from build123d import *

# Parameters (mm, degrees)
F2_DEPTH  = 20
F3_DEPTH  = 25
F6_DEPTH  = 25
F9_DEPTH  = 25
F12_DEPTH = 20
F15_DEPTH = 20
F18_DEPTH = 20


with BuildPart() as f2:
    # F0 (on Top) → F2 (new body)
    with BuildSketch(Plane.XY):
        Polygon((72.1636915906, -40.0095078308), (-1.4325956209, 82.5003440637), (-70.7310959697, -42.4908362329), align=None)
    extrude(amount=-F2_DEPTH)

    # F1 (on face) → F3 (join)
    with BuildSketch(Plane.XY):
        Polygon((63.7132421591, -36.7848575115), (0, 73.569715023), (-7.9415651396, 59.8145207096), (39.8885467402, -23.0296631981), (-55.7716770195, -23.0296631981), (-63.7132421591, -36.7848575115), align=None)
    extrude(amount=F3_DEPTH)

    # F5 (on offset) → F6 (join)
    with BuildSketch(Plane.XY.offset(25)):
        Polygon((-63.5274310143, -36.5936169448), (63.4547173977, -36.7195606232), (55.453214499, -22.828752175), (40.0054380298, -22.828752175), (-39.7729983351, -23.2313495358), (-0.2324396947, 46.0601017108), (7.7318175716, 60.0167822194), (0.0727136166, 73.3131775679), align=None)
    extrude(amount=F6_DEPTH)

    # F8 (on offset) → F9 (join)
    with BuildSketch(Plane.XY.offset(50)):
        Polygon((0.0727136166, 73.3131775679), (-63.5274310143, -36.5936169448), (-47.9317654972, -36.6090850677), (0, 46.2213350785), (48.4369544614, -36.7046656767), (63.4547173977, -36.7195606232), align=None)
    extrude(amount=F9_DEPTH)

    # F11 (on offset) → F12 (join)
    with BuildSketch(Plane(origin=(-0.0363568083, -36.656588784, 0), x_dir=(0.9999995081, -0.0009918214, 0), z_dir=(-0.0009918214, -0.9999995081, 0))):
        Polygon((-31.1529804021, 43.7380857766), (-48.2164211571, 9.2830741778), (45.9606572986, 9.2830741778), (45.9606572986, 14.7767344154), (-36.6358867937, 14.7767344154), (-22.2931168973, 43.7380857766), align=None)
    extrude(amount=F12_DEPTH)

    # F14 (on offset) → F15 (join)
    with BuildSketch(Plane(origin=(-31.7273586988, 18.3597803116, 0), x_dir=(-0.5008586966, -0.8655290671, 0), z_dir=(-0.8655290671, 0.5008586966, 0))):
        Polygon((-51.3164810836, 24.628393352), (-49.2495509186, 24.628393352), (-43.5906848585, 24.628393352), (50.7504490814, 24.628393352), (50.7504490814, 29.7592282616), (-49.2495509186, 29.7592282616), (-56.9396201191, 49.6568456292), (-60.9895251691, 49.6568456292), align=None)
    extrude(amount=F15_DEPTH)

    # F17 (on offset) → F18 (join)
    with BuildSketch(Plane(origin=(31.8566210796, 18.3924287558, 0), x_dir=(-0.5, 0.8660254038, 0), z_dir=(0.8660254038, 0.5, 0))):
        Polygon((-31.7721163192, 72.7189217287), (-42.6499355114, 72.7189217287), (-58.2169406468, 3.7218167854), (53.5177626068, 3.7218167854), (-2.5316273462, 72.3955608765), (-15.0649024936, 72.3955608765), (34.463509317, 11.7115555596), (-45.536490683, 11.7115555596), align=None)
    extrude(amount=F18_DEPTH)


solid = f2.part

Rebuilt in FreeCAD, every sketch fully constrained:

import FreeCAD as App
import Part
import Sketcher
Q = App.Units.Quantity


def add_polygon(sketch, points):
    """Adds a closed chain of lines whose ends are joined by coincident constraints."""
    first, n = sketch.GeometryCount, len(points)
    for a, b in zip(points, points[1:] + points[:1]):
        sketch.addGeometry(Part.LineSegment(App.Vector(*a, 0), App.Vector(*b, 0)), False)
    for i in range(n):
        sketch.addConstraint(Sketcher.Constraint("Coincident", first + i, 2, first + (i + 1) % n, 1))

doc = App.newDocument("Part")
body = doc.addObject("PartDesign::Body", "Body")

# Sketch on XY plane
sketch1 = doc.addObject("Sketcher::SketchObject", "Sketch")
body.addObject(sketch1)
sketch1.AttachmentSupport = (doc.XY_Plane, [""])
sketch1.MapMode = "FlatFace"
add_polygon(sketch1, [(72, -40), (-1, 83), (-71, -42)])  # lines 0-2
sketch1.addConstraint([
    Sketcher.Constraint("Equal", 0, 1),
    Sketcher.Constraint("Equal", 1, 2),
    Sketcher.Constraint("DistanceX", 1, 2, 0, 2, Q("69.2985 mm")),
    Sketcher.Constraint("Distance", 0, Q("142.91633 mm")),
    Sketcher.Constraint("DistanceX", -1, 1, 2, 2, Q("72.163692 mm")),
    Sketcher.Constraint("DistanceY", -1, 1, 0, 2, Q("82.500344 mm")),
])
pad1 = doc.addObject("PartDesign::Pad", "Pad")
body.addObject(pad1)
pad1.Profile = sketch1
pad1.Length = 20
pad1.Reversed = True

# Sketch on XY plane
sketch2 = doc.addObject("Sketcher::SketchObject", "Sketch001")
body.addObject(sketch2)
sketch2.AttachmentSupport = (doc.XY_Plane, [""])
sketch2.MapMode = "FlatFace"
add_polygon(sketch2, [(64, -37), (0, 74), (-8, 60), (40, -23), (-56, -23), (-64, -37)])  # lines 0-5
sketch2.addConstraint([
    Sketcher.Constraint("Horizontal", 3),
    Sketcher.Constraint("Horizontal", 5),
    Sketcher.Constraint("PointOnObject", 0, 2, -2),
    Sketcher.Constraint("Parallel", 0, 2),
    Sketcher.Constraint("Parallel", 1, 4),
    Sketcher.Constraint("Equal", 1, 4),
    Sketcher.Constraint("Angle", 0, Q("120 deg")),
    Sketcher.Constraint("Angle", 1, Q("-120 deg")),
    Sketcher.Constraint("Distance", 1, Q("15.88313 mm")),
    Sketcher.Constraint("DistanceX", 3, 2, 3, 1, Q("95.660224 mm")),
    Sketcher.Constraint("DistanceY", -1, 1, 1, 2, Q("59.814521 mm")),
    Sketcher.Constraint("DistanceX", 1, 2, 2, 2, Q("47.830112 mm")),
])
pad2 = doc.addObject("PartDesign::Pad", "Pad001")
body.addObject(pad2)
pad2.Profile = sketch2
pad2.Length = 25

# Sketch on XY plane
sketch3 = doc.addObject("Sketcher::SketchObject", "Sketch002")
body.addObject(sketch3)
sketch3.AttachmentSupport = (doc.XY_Plane, [""])
sketch3.MapMode = "FlatFace"
sketch3.AttachmentOffset = App.Placement(App.Vector(0, 0, 25), App.Rotation())
add_polygon(sketch3, [(-64, -37), (63, -37), (55, -23), (40, -23), (-40, -23), (0, 46), (8, 60), (0, 73)])  # lines 0-7
sketch3.addConstraint([
    Sketcher.Constraint("Horizontal", 2),
    Sketcher.Constraint("Parallel", 4, 5),
    Sketcher.Constraint("Parallel", 1, 6),
    Sketcher.Constraint("Equal", 3, 4),
    Sketcher.Constraint("Equal", 0, 7),
    Sketcher.Constraint("DistanceX", 3, 2, -1, 1, Q("39.772998 mm")),
    Sketcher.Constraint("DistanceY", -1, 1, 4, 2, Q("46.060102 mm")),
    Sketcher.Constraint("DistanceX", 5, 2, 0, 2, Q("55.7229 mm")),
    Sketcher.Constraint("DistanceX", 6, 2, 1, 2, Q("55.380501 mm")),
    Sketcher.Constraint("DistanceY", 7, 2, 5, 2, Q("96.610399 mm")),
    Sketcher.Constraint("Distance", 0, Q("126.982211 mm")),
    Sketcher.Constraint("DistanceX", 2, 2, 2, 1, Q("15.447776 mm")),
    Sketcher.Constraint("DistanceY", 0, 2, -1, 1, Q("36.719561 mm")),
    Sketcher.Constraint("DistanceX", -1, 1, 2, 2, Q("40.005438 mm")),
    Sketcher.Constraint("DistanceY", 3, 2, -1, 1, Q("23.23135 mm")),
    Sketcher.Constraint("DistanceX", 7, 2, -1, 1, Q("63.527431 mm")),
])
pad3 = doc.addObject("PartDesign::Pad", "Pad002")
body.addObject(pad3)
pad3.Profile = sketch3
pad3.Length = 25

# Sketch on XY plane
sketch4 = doc.addObject("Sketcher::SketchObject", "Sketch003")
body.addObject(sketch4)
sketch4.AttachmentSupport = (doc.XY_Plane, [""])
sketch4.MapMode = "FlatFace"
sketch4.AttachmentOffset = App.Placement(App.Vector(0, 0, 50), App.Rotation())
add_polygon(sketch4, [(0, 73), (-64, -37), (-48, -37), (0, 46), (48, -37), (63, -37)])  # lines 0-5
sketch4.addConstraint([
    Sketcher.Constraint("PointOnObject", 2, 2, -2),
    Sketcher.Constraint("Parallel", 0, 2),
    Sketcher.Constraint("Parallel", 1, 4),
    Sketcher.Constraint("Equal", 0, 5),
    Sketcher.Constraint("DistanceY", 3, 2, 2, 2, Q("82.926001 mm")),
    Sketcher.Constraint("Distance", 0, Q("126.982211 mm")),
    Sketcher.Constraint("Distance", 4, Q("15.01777 mm")),
    Sketcher.Constraint("DistanceX", 0, 2, -1, 1, Q("63.527431 mm")),
    Sketcher.Constraint("DistanceY", 4, 2, -1, 1, Q("36.719561 mm")),
    Sketcher.Constraint("DistanceY", 1, 2, 0, 2, Q("0.015468 mm")),
    Sketcher.Constraint("DistanceY", 1, 2, 2, 2, Q("82.83042 mm")),
    Sketcher.Constraint("DistanceX", 1, 2, 3, 2, Q("96.36872 mm")),
])
pad4 = doc.addObject("PartDesign::Pad", "Pad003")
body.addObject(pad4)
pad4.Profile = sketch4
pad4.Length = 25

# Sketch on an angled plane
sketch5 = doc.addObject("Sketcher::SketchObject", "Sketch004")
body.addObject(sketch5)
sketch5.Placement = App.Placement(App.Vector(-0.036357, -36.656589, 0), App.Rotation(App.Vector(0.999999508, -0.000991821, 0), App.Vector(0, 0, 1), App.Vector(-0.000991821, -0.999999508, 0), "ZXY"))
add_polygon(sketch5, [(-31, 44), (-48, 9), (46, 9), (46, 15), (-37, 15), (-22, 44)])  # lines 0-5
sketch5.addConstraint([
    Sketcher.Constraint("Horizontal", 1),
    Sketcher.Constraint("Vertical", 2),
    Sketcher.Constraint("Horizontal", 3),
    Sketcher.Constraint("Horizontal", 5),
    Sketcher.Constraint("Parallel", 0, 4),
    Sketcher.Constraint("DistanceX", 1, 1, 1, 2, Q("94.177078 mm")),
    Sketcher.Constraint("DistanceY", 2, 1, 2, 2, Q("5.49366 mm")),
    Sketcher.Constraint("Distance", 0, Q("38.448782 mm")),
    Sketcher.Constraint("DistanceX", 3, 2, 3, 1, Q("82.596544 mm")),
    Sketcher.Constraint("DistanceX", 5, 2, 5, 1, Q("8.859864 mm")),
    Sketcher.Constraint("DistanceX", 0, 2, -1, 1, Q("48.216421 mm")),
    Sketcher.Constraint("DistanceY", -1, 1, 0, 2, Q("9.283074 mm")),
])
pad5 = doc.addObject("PartDesign::Pad", "Pad004")
body.addObject(pad5)
pad5.Profile = sketch5
pad5.Length = 20

# Sketch on an angled plane
sketch6 = doc.addObject("Sketcher::SketchObject", "Sketch005")
body.addObject(sketch6)
sketch6.Placement = App.Placement(App.Vector(-31.727359, 18.35978, 0), App.Rotation(App.Vector(-0.500858697, -0.865529067, 0), App.Vector(0, 0, 1), App.Vector(-0.865529067, 0.500858697, 0), "ZXY"))
add_polygon(sketch6, [(-51.3, 24.6), (50.8, 24.6), (50.8, 29.8), (-49.2, 29.8), (-56.9, 49.7), (-61, 49.7)])  # lines 0-5
sketch6.addConstraint([
    Sketcher.Constraint("Horizontal", 0),
    Sketcher.Constraint("Vertical", 1),
    Sketcher.Constraint("Horizontal", 2),
    Sketcher.Constraint("Horizontal", 4),
    Sketcher.Constraint("Parallel", 3, 5),
    Sketcher.Constraint("DistanceX", 2, 2, 2, 1, Q("100 mm")),
    Sketcher.Constraint("DistanceX", 0, 1, 0, 2, Q("102.06693 mm")),
    Sketcher.Constraint("Distance", 5, Q("26.832652 mm")),
    Sketcher.Constraint("DistanceX", 4, 2, 4, 1, Q("4.049905 mm")),
    Sketcher.Constraint("DistanceY", 1, 1, 1, 2, Q("5.130835 mm")),
    Sketcher.Constraint("DistanceX", -1, 1, 0, 2, Q("50.750449 mm")),
    Sketcher.Constraint("DistanceY", -1, 1, 1, 2, Q("29.759228 mm")),
])
pad6 = doc.addObject("PartDesign::Pad", "Pad005")
body.addObject(pad6)
pad6.Profile = sketch6
pad6.Length = 20

# Sketch on an angled plane
sketch7 = doc.addObject("Sketcher::SketchObject", "Sketch006")
body.addObject(sketch7)
sketch7.Placement = App.Placement(App.Vector(31.856621, 18.392429, 0), App.Rotation(App.Vector(-0.5, 0.866025404, 0), App.Vector(0, 0, 1), App.Vector(0.866025404, 0.5, 0), "ZXY"))
add_polygon(sketch7, [(-32, 73), (-43, 73), (-58, 4), (54, 4), (-3, 72), (-15, 72), (34, 12), (-46, 12)])  # lines 0-7
sketch7.addConstraint([
    Sketcher.Constraint("Horizontal", 0),
    Sketcher.Constraint("Horizontal", 2),
    Sketcher.Constraint("Horizontal", 4),
    Sketcher.Constraint("Horizontal", 6),
    Sketcher.Constraint("Parallel", 3, 5),
    Sketcher.Constraint("Parallel", 1, 7),
    Sketcher.Constraint("DistanceX", 6, 2, 6, 1, Q("80 mm")),
    Sketcher.Constraint("Distance", 3, Q("88.643202 mm")),
    Sketcher.Constraint("DistanceX", 0, 2, 0, 1, Q("10.877819 mm")),
    Sketcher.Constraint("DistanceX", 0, 2, 2, 2, Q("96.167698 mm")),
    Sketcher.Constraint("Distance", 1, Q("70.731408 mm")),
    Sketcher.Constraint("Distance", 7, Q("62.540841 mm")),
    Sketcher.Constraint("DistanceX", 2, 1, 2, 2, Q("111.734703 mm")),
    Sketcher.Constraint("DistanceX", 4, 2, 4, 1, Q("12.533275 mm")),
    Sketcher.Constraint("DistanceY", -1, 1, 0, 2, Q("72.718922 mm")),
    Sketcher.Constraint("DistanceX", 1, 2, -1, 1, Q("58.216941 mm")),
])
pad7 = doc.addObject("PartDesign::Pad", "Pad006")
body.addObject(pad7)
pad7.Profile = sketch7
pad7.Length = 20

doc.recompute()
